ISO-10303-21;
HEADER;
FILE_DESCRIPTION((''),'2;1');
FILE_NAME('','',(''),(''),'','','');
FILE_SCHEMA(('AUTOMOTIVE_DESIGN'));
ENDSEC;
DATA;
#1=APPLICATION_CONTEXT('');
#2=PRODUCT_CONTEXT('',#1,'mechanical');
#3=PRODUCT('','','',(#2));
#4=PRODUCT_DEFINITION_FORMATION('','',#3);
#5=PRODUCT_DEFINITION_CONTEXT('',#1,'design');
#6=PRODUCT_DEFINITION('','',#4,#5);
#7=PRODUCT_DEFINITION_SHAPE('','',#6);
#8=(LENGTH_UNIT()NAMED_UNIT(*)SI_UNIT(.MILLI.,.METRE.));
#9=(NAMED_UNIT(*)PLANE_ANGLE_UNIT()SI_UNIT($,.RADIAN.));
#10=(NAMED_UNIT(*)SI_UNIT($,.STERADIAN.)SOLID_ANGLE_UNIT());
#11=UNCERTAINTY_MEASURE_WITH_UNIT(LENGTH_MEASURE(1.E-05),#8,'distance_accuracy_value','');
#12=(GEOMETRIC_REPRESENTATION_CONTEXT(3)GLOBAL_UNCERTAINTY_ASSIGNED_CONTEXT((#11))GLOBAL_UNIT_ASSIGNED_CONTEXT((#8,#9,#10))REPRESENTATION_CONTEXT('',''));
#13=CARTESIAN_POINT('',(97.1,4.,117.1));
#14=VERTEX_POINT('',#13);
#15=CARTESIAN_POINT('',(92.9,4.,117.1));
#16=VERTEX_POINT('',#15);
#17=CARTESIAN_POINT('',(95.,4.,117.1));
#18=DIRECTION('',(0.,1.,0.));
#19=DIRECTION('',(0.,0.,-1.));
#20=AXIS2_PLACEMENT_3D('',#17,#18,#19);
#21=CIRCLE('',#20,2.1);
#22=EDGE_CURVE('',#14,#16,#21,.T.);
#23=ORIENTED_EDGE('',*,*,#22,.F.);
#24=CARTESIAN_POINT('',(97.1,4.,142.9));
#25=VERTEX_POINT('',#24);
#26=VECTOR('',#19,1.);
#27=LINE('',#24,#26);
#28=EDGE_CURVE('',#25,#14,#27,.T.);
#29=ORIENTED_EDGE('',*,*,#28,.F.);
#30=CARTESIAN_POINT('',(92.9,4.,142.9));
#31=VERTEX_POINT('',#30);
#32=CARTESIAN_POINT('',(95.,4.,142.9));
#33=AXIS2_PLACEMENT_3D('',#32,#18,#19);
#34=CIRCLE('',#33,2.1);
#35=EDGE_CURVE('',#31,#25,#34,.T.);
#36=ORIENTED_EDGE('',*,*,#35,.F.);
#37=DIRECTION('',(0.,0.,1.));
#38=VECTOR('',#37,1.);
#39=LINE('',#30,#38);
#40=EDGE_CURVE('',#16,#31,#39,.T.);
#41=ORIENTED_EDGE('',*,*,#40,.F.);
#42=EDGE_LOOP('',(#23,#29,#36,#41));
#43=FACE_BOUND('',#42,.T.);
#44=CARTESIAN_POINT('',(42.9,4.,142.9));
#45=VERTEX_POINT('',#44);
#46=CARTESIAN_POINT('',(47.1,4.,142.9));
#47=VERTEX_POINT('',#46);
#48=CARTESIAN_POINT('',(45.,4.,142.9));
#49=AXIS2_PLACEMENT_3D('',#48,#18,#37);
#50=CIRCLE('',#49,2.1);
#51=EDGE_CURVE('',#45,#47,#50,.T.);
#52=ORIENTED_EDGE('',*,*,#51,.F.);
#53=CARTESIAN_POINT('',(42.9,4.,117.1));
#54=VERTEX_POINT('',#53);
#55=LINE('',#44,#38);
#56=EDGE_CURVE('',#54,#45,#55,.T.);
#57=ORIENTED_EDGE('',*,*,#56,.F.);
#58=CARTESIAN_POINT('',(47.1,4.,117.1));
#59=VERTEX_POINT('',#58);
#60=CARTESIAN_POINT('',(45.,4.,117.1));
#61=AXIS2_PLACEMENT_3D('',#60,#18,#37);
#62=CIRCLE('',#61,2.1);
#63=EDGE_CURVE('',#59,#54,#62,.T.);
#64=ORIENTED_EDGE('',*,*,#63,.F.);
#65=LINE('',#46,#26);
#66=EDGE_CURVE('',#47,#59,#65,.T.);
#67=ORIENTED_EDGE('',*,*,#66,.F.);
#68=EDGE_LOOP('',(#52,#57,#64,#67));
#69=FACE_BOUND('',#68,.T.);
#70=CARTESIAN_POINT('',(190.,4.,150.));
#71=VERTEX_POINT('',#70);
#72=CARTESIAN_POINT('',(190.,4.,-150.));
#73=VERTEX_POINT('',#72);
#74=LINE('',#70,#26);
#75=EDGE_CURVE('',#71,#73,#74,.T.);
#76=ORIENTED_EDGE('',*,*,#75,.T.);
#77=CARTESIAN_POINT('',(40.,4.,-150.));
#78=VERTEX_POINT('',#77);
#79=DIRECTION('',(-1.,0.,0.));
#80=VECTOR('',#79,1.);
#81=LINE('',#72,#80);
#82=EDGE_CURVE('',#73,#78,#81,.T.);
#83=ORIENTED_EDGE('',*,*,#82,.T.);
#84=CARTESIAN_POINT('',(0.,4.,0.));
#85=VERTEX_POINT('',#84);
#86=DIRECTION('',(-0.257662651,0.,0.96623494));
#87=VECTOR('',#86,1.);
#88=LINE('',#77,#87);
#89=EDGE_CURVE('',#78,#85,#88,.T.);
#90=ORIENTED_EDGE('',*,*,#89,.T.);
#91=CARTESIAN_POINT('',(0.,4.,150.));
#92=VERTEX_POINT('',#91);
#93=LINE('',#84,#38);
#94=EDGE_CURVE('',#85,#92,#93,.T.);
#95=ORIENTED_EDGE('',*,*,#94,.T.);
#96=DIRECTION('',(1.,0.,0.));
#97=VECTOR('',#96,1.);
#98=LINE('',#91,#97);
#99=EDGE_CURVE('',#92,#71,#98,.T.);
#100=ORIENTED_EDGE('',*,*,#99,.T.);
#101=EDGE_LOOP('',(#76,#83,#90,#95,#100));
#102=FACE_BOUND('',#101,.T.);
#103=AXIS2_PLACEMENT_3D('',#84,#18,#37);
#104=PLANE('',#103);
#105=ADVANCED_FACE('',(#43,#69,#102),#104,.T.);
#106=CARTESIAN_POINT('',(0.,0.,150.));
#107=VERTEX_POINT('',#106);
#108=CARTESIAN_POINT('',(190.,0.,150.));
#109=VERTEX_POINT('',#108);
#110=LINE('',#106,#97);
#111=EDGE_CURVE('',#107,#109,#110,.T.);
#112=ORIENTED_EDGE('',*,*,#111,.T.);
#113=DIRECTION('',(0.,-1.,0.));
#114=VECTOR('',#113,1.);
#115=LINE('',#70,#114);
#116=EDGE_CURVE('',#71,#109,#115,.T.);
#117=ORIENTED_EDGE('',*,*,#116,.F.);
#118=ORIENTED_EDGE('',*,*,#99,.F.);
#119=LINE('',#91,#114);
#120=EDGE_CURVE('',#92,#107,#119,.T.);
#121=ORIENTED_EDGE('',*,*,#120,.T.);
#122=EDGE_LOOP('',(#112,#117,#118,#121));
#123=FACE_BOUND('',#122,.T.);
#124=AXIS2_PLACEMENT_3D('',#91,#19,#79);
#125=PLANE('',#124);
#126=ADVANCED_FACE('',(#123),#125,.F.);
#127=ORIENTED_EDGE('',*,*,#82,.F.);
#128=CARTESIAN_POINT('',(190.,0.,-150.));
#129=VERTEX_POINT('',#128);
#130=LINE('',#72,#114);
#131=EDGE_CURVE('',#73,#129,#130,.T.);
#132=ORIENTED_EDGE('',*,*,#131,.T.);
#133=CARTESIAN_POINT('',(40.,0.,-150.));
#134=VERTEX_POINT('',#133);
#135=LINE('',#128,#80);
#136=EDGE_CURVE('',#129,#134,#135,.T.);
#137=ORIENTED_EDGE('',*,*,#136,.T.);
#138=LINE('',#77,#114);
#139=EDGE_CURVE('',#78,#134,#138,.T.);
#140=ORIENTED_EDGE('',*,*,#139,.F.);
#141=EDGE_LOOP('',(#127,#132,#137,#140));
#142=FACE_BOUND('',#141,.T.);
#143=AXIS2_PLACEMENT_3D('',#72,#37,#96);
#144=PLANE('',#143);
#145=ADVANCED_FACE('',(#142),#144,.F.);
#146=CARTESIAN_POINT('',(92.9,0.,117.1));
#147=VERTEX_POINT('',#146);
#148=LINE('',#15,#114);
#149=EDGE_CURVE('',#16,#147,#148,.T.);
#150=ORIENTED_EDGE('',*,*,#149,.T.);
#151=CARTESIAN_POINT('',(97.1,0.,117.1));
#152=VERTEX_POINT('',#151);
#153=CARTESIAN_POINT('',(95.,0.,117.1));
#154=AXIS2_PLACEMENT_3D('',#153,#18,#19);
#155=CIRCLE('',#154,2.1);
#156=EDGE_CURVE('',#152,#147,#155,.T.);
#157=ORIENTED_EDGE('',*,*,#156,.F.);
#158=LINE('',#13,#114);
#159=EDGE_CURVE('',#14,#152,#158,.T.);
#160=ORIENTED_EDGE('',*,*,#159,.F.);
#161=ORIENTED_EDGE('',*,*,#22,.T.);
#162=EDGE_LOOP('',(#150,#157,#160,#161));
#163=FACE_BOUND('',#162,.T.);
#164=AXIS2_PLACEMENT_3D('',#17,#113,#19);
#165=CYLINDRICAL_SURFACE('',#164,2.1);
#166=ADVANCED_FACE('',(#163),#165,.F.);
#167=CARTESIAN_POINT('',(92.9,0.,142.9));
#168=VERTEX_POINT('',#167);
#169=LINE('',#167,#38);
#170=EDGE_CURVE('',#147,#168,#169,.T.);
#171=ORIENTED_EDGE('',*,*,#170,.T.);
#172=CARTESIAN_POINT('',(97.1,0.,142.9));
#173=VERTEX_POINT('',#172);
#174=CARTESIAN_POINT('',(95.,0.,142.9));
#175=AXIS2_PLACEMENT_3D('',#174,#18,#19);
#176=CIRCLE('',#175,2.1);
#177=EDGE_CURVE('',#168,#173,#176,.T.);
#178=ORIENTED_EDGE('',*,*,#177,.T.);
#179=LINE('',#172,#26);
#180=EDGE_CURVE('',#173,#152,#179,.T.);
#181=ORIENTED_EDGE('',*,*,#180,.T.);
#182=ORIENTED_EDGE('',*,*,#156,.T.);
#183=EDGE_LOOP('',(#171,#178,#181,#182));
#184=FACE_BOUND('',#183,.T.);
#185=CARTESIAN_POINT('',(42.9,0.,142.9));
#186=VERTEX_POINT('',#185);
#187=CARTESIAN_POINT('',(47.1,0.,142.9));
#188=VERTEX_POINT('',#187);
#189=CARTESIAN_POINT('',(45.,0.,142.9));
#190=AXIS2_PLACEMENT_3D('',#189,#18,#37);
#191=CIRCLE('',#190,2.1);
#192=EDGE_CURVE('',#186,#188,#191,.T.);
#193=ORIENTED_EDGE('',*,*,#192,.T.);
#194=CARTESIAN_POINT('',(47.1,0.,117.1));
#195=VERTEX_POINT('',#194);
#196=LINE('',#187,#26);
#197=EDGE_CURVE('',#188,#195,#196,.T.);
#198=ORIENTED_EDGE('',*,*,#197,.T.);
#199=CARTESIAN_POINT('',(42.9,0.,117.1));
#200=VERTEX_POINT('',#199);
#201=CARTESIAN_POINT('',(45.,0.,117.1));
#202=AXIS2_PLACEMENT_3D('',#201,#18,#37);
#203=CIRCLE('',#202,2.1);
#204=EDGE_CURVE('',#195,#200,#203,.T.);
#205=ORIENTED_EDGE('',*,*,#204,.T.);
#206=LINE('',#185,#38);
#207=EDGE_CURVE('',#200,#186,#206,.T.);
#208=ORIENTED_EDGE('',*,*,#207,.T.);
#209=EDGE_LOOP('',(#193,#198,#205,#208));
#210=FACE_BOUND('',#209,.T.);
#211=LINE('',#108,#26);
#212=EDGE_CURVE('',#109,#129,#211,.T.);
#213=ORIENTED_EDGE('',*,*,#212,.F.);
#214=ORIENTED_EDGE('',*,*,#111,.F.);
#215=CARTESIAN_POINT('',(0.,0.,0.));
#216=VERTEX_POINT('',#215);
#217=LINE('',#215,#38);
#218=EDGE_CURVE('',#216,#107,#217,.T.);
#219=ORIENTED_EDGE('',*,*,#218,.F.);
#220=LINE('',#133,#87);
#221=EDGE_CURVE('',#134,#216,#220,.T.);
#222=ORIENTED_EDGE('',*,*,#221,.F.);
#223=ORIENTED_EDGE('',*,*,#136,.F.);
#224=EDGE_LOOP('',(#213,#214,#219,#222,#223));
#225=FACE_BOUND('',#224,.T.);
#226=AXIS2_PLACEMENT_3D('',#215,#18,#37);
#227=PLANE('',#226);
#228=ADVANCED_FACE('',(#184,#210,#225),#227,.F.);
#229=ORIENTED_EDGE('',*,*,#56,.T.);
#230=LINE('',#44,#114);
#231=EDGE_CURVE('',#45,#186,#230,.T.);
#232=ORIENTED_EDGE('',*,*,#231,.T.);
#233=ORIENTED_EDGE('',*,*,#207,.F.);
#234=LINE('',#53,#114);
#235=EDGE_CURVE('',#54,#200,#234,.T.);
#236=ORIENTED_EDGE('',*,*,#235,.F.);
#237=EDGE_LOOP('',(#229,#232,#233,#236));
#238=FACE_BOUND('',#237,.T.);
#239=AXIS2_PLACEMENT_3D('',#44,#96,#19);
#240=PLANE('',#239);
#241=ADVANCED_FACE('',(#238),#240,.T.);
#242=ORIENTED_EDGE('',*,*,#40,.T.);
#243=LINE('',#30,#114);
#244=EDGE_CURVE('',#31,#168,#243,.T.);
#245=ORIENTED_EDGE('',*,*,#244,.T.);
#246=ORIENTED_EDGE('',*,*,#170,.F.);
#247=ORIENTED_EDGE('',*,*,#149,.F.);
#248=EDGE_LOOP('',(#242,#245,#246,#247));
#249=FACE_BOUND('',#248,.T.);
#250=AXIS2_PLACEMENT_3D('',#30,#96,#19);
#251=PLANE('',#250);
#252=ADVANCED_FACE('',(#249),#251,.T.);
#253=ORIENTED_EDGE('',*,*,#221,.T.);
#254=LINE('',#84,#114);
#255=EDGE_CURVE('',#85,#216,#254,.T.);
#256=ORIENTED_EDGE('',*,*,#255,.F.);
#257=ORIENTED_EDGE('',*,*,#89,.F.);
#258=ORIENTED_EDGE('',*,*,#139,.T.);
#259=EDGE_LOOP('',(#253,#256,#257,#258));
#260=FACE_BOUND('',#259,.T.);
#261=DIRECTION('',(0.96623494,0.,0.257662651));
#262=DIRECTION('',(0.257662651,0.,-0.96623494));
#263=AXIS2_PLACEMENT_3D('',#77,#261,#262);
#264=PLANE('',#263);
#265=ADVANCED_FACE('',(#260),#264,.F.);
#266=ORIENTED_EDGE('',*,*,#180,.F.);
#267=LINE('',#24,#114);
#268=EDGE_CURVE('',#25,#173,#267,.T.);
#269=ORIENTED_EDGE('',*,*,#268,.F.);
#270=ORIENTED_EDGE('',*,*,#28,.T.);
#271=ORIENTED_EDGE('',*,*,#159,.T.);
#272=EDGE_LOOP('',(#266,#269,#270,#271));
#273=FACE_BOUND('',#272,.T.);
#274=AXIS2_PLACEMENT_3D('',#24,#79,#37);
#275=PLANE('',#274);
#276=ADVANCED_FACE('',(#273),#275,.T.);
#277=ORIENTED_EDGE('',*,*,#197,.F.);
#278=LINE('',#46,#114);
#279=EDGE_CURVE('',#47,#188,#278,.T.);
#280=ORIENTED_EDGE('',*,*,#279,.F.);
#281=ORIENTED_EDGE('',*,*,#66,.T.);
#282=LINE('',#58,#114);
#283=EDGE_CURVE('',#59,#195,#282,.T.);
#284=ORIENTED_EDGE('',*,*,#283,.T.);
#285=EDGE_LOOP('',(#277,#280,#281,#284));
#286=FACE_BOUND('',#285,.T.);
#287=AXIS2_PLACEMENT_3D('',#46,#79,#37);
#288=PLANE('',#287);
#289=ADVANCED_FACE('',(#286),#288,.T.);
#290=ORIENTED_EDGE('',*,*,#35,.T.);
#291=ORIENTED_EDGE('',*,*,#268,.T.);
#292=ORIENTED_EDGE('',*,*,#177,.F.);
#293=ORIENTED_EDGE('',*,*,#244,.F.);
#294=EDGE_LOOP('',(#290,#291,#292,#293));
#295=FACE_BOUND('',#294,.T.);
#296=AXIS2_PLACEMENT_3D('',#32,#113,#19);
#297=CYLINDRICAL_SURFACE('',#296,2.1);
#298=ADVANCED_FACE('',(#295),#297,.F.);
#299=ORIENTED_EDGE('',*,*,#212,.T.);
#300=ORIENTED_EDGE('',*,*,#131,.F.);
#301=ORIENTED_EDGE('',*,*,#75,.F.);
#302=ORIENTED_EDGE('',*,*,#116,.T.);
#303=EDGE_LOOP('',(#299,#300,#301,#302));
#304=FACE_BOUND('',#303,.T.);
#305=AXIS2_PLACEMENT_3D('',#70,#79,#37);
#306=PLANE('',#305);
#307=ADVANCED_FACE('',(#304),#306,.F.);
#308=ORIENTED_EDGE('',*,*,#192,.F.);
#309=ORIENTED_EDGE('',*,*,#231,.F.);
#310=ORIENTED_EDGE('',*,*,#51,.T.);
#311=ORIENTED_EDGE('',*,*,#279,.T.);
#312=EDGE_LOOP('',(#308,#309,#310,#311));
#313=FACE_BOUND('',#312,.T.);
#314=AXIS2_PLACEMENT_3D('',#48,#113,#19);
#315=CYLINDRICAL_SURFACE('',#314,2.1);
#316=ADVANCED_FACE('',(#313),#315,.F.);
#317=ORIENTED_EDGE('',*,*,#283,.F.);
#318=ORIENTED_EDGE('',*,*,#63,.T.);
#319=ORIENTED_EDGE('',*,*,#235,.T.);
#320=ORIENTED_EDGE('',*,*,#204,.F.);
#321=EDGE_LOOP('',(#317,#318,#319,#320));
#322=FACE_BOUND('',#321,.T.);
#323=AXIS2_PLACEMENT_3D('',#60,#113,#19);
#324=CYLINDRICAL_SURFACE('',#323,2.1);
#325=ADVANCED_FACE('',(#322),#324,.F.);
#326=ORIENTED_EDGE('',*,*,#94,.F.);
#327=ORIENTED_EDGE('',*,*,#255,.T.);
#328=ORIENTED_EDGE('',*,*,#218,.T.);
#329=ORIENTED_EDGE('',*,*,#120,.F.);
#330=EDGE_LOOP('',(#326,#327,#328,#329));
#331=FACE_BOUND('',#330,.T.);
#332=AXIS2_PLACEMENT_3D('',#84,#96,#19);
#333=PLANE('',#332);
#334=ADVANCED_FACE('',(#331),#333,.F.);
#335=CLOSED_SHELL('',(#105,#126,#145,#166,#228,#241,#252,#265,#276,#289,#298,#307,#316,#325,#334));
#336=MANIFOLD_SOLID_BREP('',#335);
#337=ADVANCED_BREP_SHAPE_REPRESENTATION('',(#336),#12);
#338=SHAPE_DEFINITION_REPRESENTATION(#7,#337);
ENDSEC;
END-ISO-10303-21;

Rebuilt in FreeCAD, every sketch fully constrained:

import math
import FreeCAD as App
import Part
import Sketcher

V = App.Vector
Q = App.Units.Quantity


def add_polygon(sketch, points):
    """Adds a closed chain of lines whose ends are joined by coincident constraints."""
    first, n = sketch.GeometryCount, len(points)
    for a, b in zip(points, points[1:] + points[:1]):
        sketch.addGeometry(Part.LineSegment(App.Vector(*a, 0), App.Vector(*b, 0)), False)
    for i in range(n):
        sketch.addConstraint(Sketcher.Constraint("Coincident", first + i, 2, first + (i + 1) % n, 1))

doc = App.newDocument("Part")
body = doc.addObject("PartDesign::Body", "Body")

sketch1 = doc.addObject("Sketcher::SketchObject", "Sketch")
body.addObject(sketch1)
sketch1.AttachmentSupport = (doc.XZ_Plane, [""])
sketch1.MapMode = "FlatFace"
add_polygon(sketch1, [(0, 0), (0, 150), (190, 150), (190, -150), (40, -150)])
sketch1.addGeometry(Part.LineSegment(V(97.1, 117.1, 0), V(97.1, 142.9, 0)), False)
sketch1.addGeometry(Part.ArcOfCircle(Part.Circle(V(95, 142.9, 0), V(0, 0, 1), 2.1), math.radians(0), math.radians(180)), False)
sketch1.addGeometry(Part.LineSegment(V(92.9, 142.9, 0), V(92.9, 117.1, 0)), False)
sketch1.addGeometry(Part.ArcOfCircle(Part.Circle(V(95, 117.1, 0), V(0, 0, 1), 2.1), math.radians(180), math.radians(360)), False)
sketch1.addGeometry(Part.ArcOfCircle(Part.Circle(V(45, 142.9, 0), V(0, 0, 1), 2.1), math.radians(0), math.radians(180)), False)
sketch1.addGeometry(Part.LineSegment(V(42.9, 142.9, 0), V(42.9, 117.1, 0)), False)
sketch1.addGeometry(Part.ArcOfCircle(Part.Circle(V(45, 117.1, 0), V(0, 0, 1), 2.1), math.radians(180), math.radians(360)), False)
sketch1.addGeometry(Part.LineSegment(V(47.1, 117.1, 0), V(47.1, 142.9, 0)), False)
sketch1.addConstraint([
    Sketcher.Constraint("Tangent", 5, 2, 6, 1),
    Sketcher.Constraint("Tangent", 6, 2, 7, 1),
    Sketcher.Constraint("Tangent", 7, 2, 8, 1),
    Sketcher.Constraint("Tangent", 8, 2, 5, 1),
    Sketcher.Constraint("Tangent", 9, 2, 10, 1),
    Sketcher.Constraint("Tangent", 10, 2, 11, 1),
    Sketcher.Constraint("Tangent", 11, 2, 12, 1),
    Sketcher.Constraint("Tangent", 12, 2, 9, 1),
    Sketcher.Constraint("Vertical", 0),
    Sketcher.Constraint("Horizontal", 1),
    Sketcher.Constraint("Vertical", 2),
    Sketcher.Constraint("Horizontal", 3),
    Sketcher.Constraint("Vertical", 5),
    Sketcher.Constraint("Vertical", 7),
    Sketcher.Constraint("Vertical", 10),
    Sketcher.Constraint("Vertical", 12),
    Sketcher.Constraint("Coincident", 4, 2, -1, 1),
    Sketcher.Constraint("Equal", 8, 9),
    Sketcher.Constraint("Horizontal", 6, 3, 9, 3),
    Sketcher.Constraint("Horizontal", 8, 3, 11, 3),
    Sketcher.Constraint("Equal", 3, 0),
    Sketcher.Constraint("Radius", 6, Q("2.1 mm")),
    Sketcher.Constraint("DistanceX", 1, 1, 1, 2, Q("190 mm")),
    Sketcher.Constraint("DistanceX", 3, 2, 3, 1, Q("150 mm")),
    Sketcher.Constraint("DistanceY", 2, 2, 2, 1, Q("300 mm")),
    Sketcher.Constraint("DistanceY", 5, 1, 5, 2, Q("25.8 mm")),
    Sketcher.Constraint("DistanceX", -1, 1, 6, 3, Q("95 mm")),
    Sketcher.Constraint("DistanceX", -1, 1, 9, 3, Q("45 mm")),
    Sketcher.Constraint("DistanceY", -1, 1, 6, 3, Q("142.9 mm")),
])
pad1 = doc.addObject("PartDesign::Pad", "Pad")
body.addObject(pad1)
pad1.Profile = sketch1
pad1.Length = 4
pad1.Reversed = True

doc.recompute()
